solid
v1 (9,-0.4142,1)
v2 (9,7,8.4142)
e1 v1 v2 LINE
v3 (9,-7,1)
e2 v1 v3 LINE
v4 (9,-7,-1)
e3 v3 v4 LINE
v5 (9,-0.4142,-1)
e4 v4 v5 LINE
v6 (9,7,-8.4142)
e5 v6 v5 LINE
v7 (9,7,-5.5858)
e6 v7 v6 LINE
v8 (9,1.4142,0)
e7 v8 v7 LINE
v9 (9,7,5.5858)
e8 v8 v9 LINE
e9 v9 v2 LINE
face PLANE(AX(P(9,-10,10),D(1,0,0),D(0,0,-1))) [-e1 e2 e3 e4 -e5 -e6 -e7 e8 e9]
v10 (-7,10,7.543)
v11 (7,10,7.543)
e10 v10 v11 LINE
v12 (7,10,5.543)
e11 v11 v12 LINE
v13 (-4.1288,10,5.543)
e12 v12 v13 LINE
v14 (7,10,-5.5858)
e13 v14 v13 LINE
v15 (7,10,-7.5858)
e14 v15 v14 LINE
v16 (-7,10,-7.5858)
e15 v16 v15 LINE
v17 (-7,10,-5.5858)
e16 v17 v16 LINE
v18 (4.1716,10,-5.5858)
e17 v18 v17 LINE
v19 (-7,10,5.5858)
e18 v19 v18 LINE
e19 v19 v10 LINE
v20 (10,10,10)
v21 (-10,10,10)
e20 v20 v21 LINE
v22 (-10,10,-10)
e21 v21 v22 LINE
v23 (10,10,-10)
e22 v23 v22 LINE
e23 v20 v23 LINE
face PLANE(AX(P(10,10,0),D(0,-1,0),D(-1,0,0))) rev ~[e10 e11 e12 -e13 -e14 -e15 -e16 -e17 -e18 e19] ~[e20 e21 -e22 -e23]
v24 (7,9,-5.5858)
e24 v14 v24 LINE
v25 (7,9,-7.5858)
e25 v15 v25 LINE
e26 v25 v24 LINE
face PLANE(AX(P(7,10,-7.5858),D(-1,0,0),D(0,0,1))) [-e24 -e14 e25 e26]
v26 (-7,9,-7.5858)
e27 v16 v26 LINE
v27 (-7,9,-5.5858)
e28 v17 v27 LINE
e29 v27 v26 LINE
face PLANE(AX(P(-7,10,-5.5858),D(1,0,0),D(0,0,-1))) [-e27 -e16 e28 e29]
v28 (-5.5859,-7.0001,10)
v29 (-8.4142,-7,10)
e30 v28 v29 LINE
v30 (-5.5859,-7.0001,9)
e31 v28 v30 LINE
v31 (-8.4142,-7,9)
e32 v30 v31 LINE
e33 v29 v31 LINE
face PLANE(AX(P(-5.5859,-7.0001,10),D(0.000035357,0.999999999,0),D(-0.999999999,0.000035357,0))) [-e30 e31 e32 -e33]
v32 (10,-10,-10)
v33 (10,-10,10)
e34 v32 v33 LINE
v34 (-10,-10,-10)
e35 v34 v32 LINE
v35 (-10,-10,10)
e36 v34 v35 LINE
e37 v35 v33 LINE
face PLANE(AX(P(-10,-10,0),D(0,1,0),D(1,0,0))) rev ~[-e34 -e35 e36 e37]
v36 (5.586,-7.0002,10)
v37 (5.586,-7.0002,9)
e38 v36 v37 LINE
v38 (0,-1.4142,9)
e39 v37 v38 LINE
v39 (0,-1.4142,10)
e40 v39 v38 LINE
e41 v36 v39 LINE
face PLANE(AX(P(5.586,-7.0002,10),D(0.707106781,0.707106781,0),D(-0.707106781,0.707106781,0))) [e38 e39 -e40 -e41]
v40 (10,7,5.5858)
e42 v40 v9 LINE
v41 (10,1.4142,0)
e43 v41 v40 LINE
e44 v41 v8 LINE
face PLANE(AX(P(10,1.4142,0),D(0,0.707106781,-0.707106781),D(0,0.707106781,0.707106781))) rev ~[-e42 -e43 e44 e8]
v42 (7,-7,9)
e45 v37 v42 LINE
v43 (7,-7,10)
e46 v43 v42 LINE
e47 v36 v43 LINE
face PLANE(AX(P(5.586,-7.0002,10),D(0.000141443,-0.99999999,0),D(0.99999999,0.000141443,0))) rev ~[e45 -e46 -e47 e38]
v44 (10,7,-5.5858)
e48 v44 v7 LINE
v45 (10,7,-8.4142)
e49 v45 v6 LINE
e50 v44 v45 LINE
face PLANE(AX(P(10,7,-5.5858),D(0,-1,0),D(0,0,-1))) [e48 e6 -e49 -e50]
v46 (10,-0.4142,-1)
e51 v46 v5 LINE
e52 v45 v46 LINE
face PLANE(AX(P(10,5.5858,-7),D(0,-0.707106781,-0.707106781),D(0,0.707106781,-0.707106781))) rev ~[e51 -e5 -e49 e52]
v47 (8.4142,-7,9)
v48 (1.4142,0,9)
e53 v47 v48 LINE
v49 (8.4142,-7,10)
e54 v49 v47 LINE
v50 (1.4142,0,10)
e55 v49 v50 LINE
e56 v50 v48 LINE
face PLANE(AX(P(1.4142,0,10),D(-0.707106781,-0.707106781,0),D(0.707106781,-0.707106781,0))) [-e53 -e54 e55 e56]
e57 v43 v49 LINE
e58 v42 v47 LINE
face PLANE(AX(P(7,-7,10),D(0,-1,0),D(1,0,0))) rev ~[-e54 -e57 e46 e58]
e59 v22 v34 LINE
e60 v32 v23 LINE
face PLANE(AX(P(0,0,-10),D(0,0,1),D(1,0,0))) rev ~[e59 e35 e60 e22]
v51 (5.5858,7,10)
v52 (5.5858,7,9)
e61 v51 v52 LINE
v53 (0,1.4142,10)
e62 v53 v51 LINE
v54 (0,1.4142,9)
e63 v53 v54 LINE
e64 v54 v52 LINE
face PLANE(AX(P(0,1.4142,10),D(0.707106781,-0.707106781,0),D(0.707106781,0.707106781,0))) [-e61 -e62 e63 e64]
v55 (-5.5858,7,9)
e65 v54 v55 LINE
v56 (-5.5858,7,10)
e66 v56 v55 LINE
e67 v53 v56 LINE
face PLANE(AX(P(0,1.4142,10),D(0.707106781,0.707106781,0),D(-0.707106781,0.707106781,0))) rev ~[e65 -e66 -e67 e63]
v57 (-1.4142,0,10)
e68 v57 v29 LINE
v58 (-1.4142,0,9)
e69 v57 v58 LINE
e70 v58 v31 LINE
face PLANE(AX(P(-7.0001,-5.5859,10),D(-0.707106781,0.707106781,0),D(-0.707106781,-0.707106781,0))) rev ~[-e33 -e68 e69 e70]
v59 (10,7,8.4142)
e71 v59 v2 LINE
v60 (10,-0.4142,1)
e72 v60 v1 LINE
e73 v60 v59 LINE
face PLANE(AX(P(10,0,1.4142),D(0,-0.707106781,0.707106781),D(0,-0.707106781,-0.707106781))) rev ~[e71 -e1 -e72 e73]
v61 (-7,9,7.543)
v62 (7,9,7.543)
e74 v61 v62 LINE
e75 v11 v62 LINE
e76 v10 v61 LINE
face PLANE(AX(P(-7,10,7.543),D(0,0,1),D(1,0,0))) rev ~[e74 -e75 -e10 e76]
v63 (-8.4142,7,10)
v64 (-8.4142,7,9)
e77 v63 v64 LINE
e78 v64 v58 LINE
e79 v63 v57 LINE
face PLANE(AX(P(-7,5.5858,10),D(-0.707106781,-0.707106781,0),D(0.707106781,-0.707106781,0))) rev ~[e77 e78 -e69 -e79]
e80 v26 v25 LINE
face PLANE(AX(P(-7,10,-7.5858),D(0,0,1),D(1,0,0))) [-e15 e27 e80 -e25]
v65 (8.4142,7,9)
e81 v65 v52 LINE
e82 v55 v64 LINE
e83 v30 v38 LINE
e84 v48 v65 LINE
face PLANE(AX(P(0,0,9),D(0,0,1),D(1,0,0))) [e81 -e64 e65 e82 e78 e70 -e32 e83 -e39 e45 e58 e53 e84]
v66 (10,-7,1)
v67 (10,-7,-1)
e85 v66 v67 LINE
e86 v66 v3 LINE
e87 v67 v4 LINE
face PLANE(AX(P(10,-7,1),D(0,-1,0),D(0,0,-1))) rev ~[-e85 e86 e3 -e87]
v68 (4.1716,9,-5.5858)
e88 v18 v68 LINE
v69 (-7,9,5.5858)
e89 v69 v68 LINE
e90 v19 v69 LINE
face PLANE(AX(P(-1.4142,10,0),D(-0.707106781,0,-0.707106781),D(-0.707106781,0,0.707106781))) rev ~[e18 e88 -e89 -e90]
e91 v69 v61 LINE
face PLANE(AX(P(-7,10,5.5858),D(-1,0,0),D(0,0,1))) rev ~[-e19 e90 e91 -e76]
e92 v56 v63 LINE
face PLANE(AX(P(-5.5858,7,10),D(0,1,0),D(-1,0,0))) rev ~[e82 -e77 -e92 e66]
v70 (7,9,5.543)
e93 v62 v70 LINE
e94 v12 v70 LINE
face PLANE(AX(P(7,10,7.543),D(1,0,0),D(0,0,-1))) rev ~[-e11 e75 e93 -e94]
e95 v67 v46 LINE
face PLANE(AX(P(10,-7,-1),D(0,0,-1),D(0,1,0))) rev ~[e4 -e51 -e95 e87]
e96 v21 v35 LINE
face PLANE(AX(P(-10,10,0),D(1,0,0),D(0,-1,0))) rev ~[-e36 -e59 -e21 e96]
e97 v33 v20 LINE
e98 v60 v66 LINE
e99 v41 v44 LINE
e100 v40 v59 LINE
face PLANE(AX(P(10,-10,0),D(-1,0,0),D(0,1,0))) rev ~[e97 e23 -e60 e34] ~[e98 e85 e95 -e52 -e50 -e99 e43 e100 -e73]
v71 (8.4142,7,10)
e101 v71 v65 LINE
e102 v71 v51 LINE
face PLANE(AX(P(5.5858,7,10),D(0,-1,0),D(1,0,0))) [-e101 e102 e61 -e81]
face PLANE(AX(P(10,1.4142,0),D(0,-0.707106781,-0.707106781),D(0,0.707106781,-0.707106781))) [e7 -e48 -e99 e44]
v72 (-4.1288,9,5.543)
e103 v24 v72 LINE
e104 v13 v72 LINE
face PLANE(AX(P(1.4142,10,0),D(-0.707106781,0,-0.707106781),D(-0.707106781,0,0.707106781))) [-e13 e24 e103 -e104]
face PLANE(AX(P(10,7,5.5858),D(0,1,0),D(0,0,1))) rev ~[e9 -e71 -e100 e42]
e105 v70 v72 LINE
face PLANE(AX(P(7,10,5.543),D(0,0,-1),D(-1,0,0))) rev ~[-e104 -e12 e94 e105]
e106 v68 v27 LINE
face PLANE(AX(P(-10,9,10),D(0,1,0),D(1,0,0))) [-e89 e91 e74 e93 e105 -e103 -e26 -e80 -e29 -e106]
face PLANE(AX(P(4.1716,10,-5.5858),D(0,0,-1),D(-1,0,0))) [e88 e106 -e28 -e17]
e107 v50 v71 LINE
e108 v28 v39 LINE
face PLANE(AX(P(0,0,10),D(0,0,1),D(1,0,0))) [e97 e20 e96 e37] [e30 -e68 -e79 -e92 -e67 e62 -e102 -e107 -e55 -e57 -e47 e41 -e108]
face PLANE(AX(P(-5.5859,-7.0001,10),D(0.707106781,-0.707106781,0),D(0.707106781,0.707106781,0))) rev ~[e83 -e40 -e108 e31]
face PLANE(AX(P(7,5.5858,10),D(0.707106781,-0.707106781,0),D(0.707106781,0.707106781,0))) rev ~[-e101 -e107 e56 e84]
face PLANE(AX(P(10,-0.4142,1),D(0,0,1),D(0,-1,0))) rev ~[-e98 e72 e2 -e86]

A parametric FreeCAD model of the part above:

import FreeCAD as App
import Part
import Sketcher
Q = App.Units.Quantity

doc = App.newDocument("Part")
params = doc.addObject("Spreadsheet::Sheet", "Params")
for row, (alias, value) in enumerate([
    ("sketch1_width", "20 mm"),
    ("pad1_length", "20 mm"),
    ("pocket1_length", "1 mm"),
    ("sketch3_height", "2 mm"),
    ("pocket2_length", "1 mm"),
    ("sketch4_width", "14 mm"),
    ("sketch4_height", "2 mm"),
    ("pocket3_length", "1 mm"),
], start=1):
    params.set(f"A{row}", alias)
    params.set(f"B{row}", "=" + value)
    params.setAlias(f"B{row}", alias)

body = doc.addObject("PartDesign::Body", "Body")

sketch1 = body.newObject("Sketcher::SketchObject", "Sketch")
sketch1.AttachmentSupport = (doc.getObject("XY_Plane"), [""])
sketch1.MapMode = "FlatFace"
sketch1.addGeometry([
    Part.LineSegment(App.Vector(-10, 10, 0), App.Vector(-10, -10, 0)),
    Part.LineSegment(App.Vector(-10, -10, 0), App.Vector(10, -10, 0)),
    Part.LineSegment(App.Vector(10, -10, 0), App.Vector(10, 10, 0)),
    Part.LineSegment(App.Vector(10, 10, 0), App.Vector(-10, 10, 0)),
], False)
sketch1.addConstraint([
    Sketcher.Constraint("Coincident", 0, 2, 1, 1),
    Sketcher.Constraint("Coincident", 1, 2, 2, 1),
    Sketcher.Constraint("Coincident", 2, 2, 3, 1),
    Sketcher.Constraint("Coincident", 3, 2, 0, 1),
    Sketcher.Constraint("Vertical", 0),
    Sketcher.Constraint("Horizontal", 1),
    Sketcher.Constraint("Vertical", 2),
    Sketcher.Constraint("Horizontal", 3),
    Sketcher.Constraint("Symmetric", 0, 2, 2, 2, -1, 1),
    Sketcher.Constraint("Equal", 3, 0),
    Sketcher.Constraint("DistanceX", 1, 1, 1, 2, Q("20 mm")),
])
sketch1.setExpression("Constraints[10]", "Params.sketch1_width")
pad1 = body.newObject("PartDesign::Pad", "Pad")
pad1.Profile = sketch1
pad1.setExpression("Length", "Params.pad1_length")
pad1.Midplane = True

sketch2 = body.newObject("Sketcher::SketchObject", "Sketch001")
sketch2.AttachmentSupport = (doc.getObject("XY_Plane"), [""])
sketch2.MapMode = "FlatFace"
sketch2.AttachmentOffset = App.Placement(App.Vector(0, 0, 10), App.Rotation())
sketch2.addGeometry([
    Part.LineSegment(App.Vector(5.6, 7, 0), App.Vector(0, 1.4, 0)),
    Part.LineSegment(App.Vector(0, 1.4, 0), App.Vector(-5.6, 7, 0)),
    Part.LineSegment(App.Vector(-5.6, 7, 0), App.Vector(-8.4, 7, 0)),
    Part.LineSegment(App.Vector(-8.4, 7, 0), App.Vector(-1.4, 0, 0)),
    Part.LineSegment(App.Vector(-1.4, 0, 0), App.Vector(-8.4, -7, 0)),
    Part.LineSegment(App.Vector(-8.4, -7, 0), App.Vector(-5.6, -7, 0)),
    Part.LineSegment(App.Vector(-5.6, -7, 0), App.Vector(0, -1.4, 0)),
    Part.LineSegment(App.Vector(0, -1.4, 0), App.Vector(5.6, -7, 0)),
    Part.LineSegment(App.Vector(5.6, -7, 0), App.Vector(7, -7, 0)),
    Part.LineSegment(App.Vector(7, -7, 0), App.Vector(8.4, -7, 0)),
    Part.LineSegment(App.Vector(8.4, -7, 0), App.Vector(1.4, 0, 0)),
    Part.LineSegment(App.Vector(1.4, 0, 0), App.Vector(8.4, 7, 0)),
    Part.LineSegment(App.Vector(8.4, 7, 0), App.Vector(5.6, 7, 0)),
], False)
sketch2.addConstraint([
    Sketcher.Constraint("Coincident", 0, 2, 1, 1),
    Sketcher.Constraint("Coincident", 1, 2, 2, 1),
    Sketcher.Constraint("Coincident", 2, 2, 3, 1),
    Sketcher.Constraint("Coincident", 3, 2, 4, 1),
    Sketcher.Constraint("Coincident", 4, 2, 5, 1),
    Sketcher.Constraint("Coincident", 5, 2, 6, 1),
    Sketcher.Constraint("Coincident", 6, 2, 7, 1),
    Sketcher.Constraint("Coincident", 7, 2, 8, 1),
    Sketcher.Constraint("Coincident", 8, 2, 9, 1),
    Sketcher.Constraint("Coincident", 9, 2, 10, 1),
    Sketcher.Constraint("Coincident", 10, 2, 11, 1),
    Sketcher.Constraint("Coincident", 11, 2, 12, 1),
    Sketcher.Constraint("Coincident", 12, 2, 0, 1),
    Sketcher.Constraint("Horizontal", 2),
    Sketcher.Constraint("Horizontal", 5),
    Sketcher.Constraint("Horizontal", 9),
    Sketcher.Constraint("Horizontal", 12),
    Sketcher.Constraint("Symmetric", 0, 2, 6, 2, -1, 1),
    Sketcher.Constraint("Symmetric", 1, 2, 7, 2, -1, 1),
    Sketcher.Constraint("Symmetric", 2, 2, 9, 2, -1, 1),
    Sketcher.Constraint("Symmetric", 3, 2, 10, 2, -1, 1),
    Sketcher.Constraint("Symmetric", 4, 2, 11, 2, -1, 1),
    Sketcher.Constraint("Symmetric", 5, 2, 7, 2, -2),
    Sketcher.Constraint("PointOnObject", 0, 2, -2),
    Sketcher.Constraint("PointOnObject", 3, 2, -1),
    Sketcher.Constraint("Perpendicular", 0, 1),
    Sketcher.Constraint("Parallel", 1, 3),
    Sketcher.Constraint("Perpendicular", 3, 4),
    Sketcher.Constraint("Parallel", 4, 6),
    Sketcher.Constraint("DistanceY", 4, 2, 2, 2, Q("14 mm")),
    Sketcher.Constraint("DistanceX", 1, 2, 11, 2, Q("14 mm")),
    Sketcher.Constraint("DistanceX", -1, 1, 8, 2, Q("7 mm")),
    Sketcher.Constraint("Distance", 8, Q("1.414 mm")),
])
pocket1 = body.newObject("PartDesign::Pocket", "Pocket")
pocket1.Profile = sketch2
pocket1.setExpression("Length", "Params.pocket1_length")

sketch3 = body.newObject("Sketcher::SketchObject", "Sketch002")
sketch3.AttachmentSupport = (doc.getObject("YZ_Plane"), [""])
sketch3.MapMode = "FlatFace"
sketch3.AttachmentOffset = App.Placement(App.Vector(0, 0, 10), App.Rotation())
sketch3.addGeometry([
    Part.LineSegment(App.Vector(7, -5.6, 0), App.Vector(1.4, 0, 0)),
    Part.LineSegment(App.Vector(1.4, 0, 0), App.Vector(7, 5.6, 0)),
    Part.LineSegment(App.Vector(7, 5.6, 0), App.Vector(7, 8.4, 0)),
    Part.LineSegment(App.Vector(7, 8.4, 0), App.Vector(-0.4, 1, 0)),
    Part.LineSegment(App.Vector(-0.4, 1, 0), App.Vector(-7, 1, 0)),
    Part.LineSegment(App.Vector(-7, 1, 0), App.Vector(-7, -1, 0)),
    Part.LineSegment(App.Vector(-7, -1, 0), App.Vector(-0.4, -1, 0)),
    Part.LineSegment(App.Vector(-0.4, -1, 0), App.Vector(7, -8.4, 0)),
    Part.LineSegment(App.Vector(7, -8.4, 0), App.Vector(7, -5.6, 0)),
], False)
sketch3.addConstraint([
    Sketcher.Constraint("Coincident", 0, 2, 1, 1),
    Sketcher.Constraint("Coincident", 1, 2, 2, 1),
    Sketcher.Constraint("Coincident", 2, 2, 3, 1),
    Sketcher.Constraint("Coincident", 3, 2, 4, 1),
    Sketcher.Constraint("Coincident", 4, 2, 5, 1),
    Sketcher.Constraint("Coincident", 5, 2, 6, 1),
    Sketcher.Constraint("Coincident", 6, 2, 7, 1),
    Sketcher.Constraint("Coincident", 7, 2, 8, 1),
    Sketcher.Constraint("Coincident", 8, 2, 0, 1),
    Sketcher.Constraint("Vertical", 2),
    Sketcher.Constraint("Horizontal", 4),
    Sketcher.Constraint("Vertical", 5),
    Sketcher.Constraint("Horizontal", 6),
    Sketcher.Constraint("Vertical", 8),
    Sketcher.Constraint("Symmetric", 3, 2, 6, 2, -1),
    Sketcher.Constraint("Symmetric", 2, 2, 7, 2, -1),
    Sketcher.Constraint("PointOnObject", 0, 2, -1),
    Sketcher.Constraint("Perpendicular", 0, 1),
    Sketcher.Constraint("Parallel", 1, 3),
    Sketcher.Constraint("Perpendicular", 3, 7),
    Sketcher.Constraint("DistanceY", 5, 2, 5, 1, Q("2 mm")),
    Sketcher.Constraint("DistanceX", -1, 1, 1, 2, Q("7 mm")),
    Sketcher.Constraint("DistanceX", 4, 2, -1, 1, Q("7 mm")),
    Sketcher.Constraint("DistanceY", 7, 2, 1, 2, Q("14 mm")),
    Sketcher.Constraint("DistanceX", 4, 2, 4, 1, Q("6.5858 mm")),
])
sketch3.setExpression("Constraints[20]", "Params.sketch3_height")
pocket2 = body.newObject("PartDesign::Pocket", "Pocket001")
pocket2.Profile = sketch3
pocket2.setExpression("Length", "Params.pocket2_length")

sketch4 = body.newObject("Sketcher::SketchObject", "Sketch003")
sketch4.AttachmentSupport = (doc.getObject("XZ_Plane"), [""])
sketch4.MapMode = "FlatFace"
sketch4.AttachmentOffset = App.Placement(App.Vector(0, 0, -10), App.Rotation())
sketch4.addGeometry([
    Part.LineSegment(App.Vector(-4.1, 5.5, 0), App.Vector(7, -5.6, 0)),
    Part.LineSegment(App.Vector(7, -5.6, 0), App.Vector(7, -7.6, 0)),
    Part.LineSegment(App.Vector(7, -7.6, 0), App.Vector(-7, -7.6, 0)),
    Part.LineSegment(App.Vector(-7, -7.6, 0), App.Vector(-7, -5.6, 0)),
    Part.LineSegment(App.Vector(-7, -5.6, 0), App.Vector(4.2, -5.6, 0)),
    Part.LineSegment(App.Vector(4.2, -5.6, 0), App.Vector(-7, 5.6, 0)),
    Part.LineSegment(App.Vector(-7, 5.6, 0), App.Vector(-7, 7.5, 0)),
    Part.LineSegment(App.Vector(-7, 7.5, 0), App.Vector(7, 7.5, 0)),
    Part.LineSegment(App.Vector(7, 7.5, 0), App.Vector(7, 5.5, 0)),
    Part.LineSegment(App.Vector(7, 5.5, 0), App.Vector(-4.1, 5.5, 0)),
], False)
sketch4.addConstraint([
    Sketcher.Constraint("Coincident", 0, 2, 1, 1),
    Sketcher.Constraint("Coincident", 1, 2, 2, 1),
    Sketcher.Constraint("Coincident", 2, 2, 3, 1),
    Sketcher.Constraint("Coincident", 3, 2, 4, 1),
    Sketcher.Constraint("Coincident", 4, 2, 5, 1),
    Sketcher.Constraint("Coincident", 5, 2, 6, 1),
    Sketcher.Constraint("Coincident", 6, 2, 7, 1),
    Sketcher.Constraint("Coincident", 7, 2, 8, 1),
    Sketcher.Constraint("Coincident", 8, 2, 9, 1),
    Sketcher.Constraint("Coincident", 9, 2, 0, 1),
    Sketcher.Constraint("Vertical", 1),
    Sketcher.Constraint("Horizontal", 2),
    Sketcher.Constraint("Vertical", 3),
    Sketcher.Constraint("Horizontal", 4),
    Sketcher.Constraint("Vertical", 6),
    Sketcher.Constraint("Horizontal", 7),
    Sketcher.Constraint("Vertical", 8),
    Sketcher.Constraint("Horizontal", 9),
    Sketcher.Constraint("Symmetric", 0, 2, 5, 2, -1, 1),
    Sketcher.Constraint("Symmetric", 0, 2, 3, 2, -2),
    Sketcher.Constraint("Parallel", 0, 5),
    Sketcher.Constraint("Vertical", 1, 2, 7, 2),
    Sketcher.Constraint("Equal", 3, 8),
    Sketcher.Constraint("DistanceX", 2, 2, 2, 1, Q("14 mm")),
    Sketcher.Constraint("DistanceY", 1, 2, 1, 1, Q("2 mm")),
    Sketcher.Constraint("Angle", 0, Q("-45 deg")),
    Sketcher.Constraint("Distance", 5, Q("15.799 mm")),
    Sketcher.Constraint("DistanceX", 9, 2, 9, 1, Q("11.1288 mm")),
])
sketch4.setExpression("Constraints[23]", "Params.sketch4_width")
sketch4.setExpression("Constraints[24]", "Params.sketch4_height")
pocket3 = body.newObject("PartDesign::Pocket", "Pocket002")
pocket3.Profile = sketch4
pocket3.setExpression("Length", "Params.pocket3_length")
pocket3.Reversed = True

doc.recompute()
